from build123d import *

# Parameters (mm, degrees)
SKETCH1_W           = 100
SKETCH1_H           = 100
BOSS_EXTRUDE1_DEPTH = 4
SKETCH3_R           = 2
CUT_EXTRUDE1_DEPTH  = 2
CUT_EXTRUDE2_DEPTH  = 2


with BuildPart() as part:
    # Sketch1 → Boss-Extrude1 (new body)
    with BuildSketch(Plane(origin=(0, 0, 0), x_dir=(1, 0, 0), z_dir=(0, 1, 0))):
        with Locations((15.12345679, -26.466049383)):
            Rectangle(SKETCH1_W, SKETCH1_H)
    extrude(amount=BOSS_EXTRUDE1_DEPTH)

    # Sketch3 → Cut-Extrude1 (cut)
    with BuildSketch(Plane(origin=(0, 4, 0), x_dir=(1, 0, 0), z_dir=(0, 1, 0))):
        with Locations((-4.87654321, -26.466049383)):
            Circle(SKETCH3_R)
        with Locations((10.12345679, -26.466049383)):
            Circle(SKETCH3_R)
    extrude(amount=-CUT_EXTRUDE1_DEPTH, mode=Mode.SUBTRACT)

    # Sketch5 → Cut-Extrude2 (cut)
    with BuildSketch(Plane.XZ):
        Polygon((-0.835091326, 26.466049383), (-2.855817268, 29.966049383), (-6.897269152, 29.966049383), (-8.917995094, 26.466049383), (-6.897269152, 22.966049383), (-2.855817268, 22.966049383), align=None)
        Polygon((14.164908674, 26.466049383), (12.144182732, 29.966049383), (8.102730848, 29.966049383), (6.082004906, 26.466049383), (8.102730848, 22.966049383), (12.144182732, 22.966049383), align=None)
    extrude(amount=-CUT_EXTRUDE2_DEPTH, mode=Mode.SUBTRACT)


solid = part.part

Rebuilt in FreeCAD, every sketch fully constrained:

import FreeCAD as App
import Part
import Sketcher
from FreeCAD import Vector
Q = App.Units.Quantity

doc = App.newDocument("Part")
params = doc.addObject("Spreadsheet::Sheet", "Params")
for row, (alias, value) in enumerate([
    ("sketch1_width", "100 mm"),
    ("pad1_length", "4 mm"),
    ("sketch2_diameter", "4 mm"),
    ("pocket1_length", "2 mm"),
    ("pocket2_length", "2 mm"),
], start=1):
    params.set(f"A{row}", alias)
    params.set(f"B{row}", "=" + value)
    params.setAlias(f"B{row}", alias)

body = doc.addObject("PartDesign::Body", "Body")

# Sketch on XZ plane
sketch1 = doc.addObject("Sketcher::SketchObject", "Sketch")
body.addObject(sketch1)
sketch1.AttachmentSupport = (doc.XZ_Plane, [""])
sketch1.MapMode = "FlatFace"
sketch1.addGeometry(Part.LineSegment(Vector(-35, -24, 0), Vector(-35, 76, 0)), False)
sketch1.addGeometry(Part.LineSegment(Vector(-35, 76, 0), Vector(65, 76, 0)), False)
sketch1.addGeometry(Part.LineSegment(Vector(65, 76, 0), Vector(65, -24, 0)), False)
sketch1.addGeometry(Part.LineSegment(Vector(65, -24, 0), Vector(-35, -24, 0)), False)
sketch1.addConstraint(Sketcher.Constraint("Coincident", 0, 2, 1, 1))
sketch1.addConstraint(Sketcher.Constraint("Coincident", 1, 2, 2, 1))
sketch1.addConstraint(Sketcher.Constraint("Coincident", 2, 2, 3, 1))
sketch1.addConstraint(Sketcher.Constraint("Coincident", 3, 2, 0, 1))
sketch1.addConstraint(Sketcher.Constraint("Vertical", 0))
sketch1.addConstraint(Sketcher.Constraint("Horizontal", 1))
sketch1.addConstraint(Sketcher.Constraint("Vertical", 2))
sketch1.addConstraint(Sketcher.Constraint("Horizontal", 3))
sketch1.addConstraint(Sketcher.Constraint("Equal", 3, 0))
sketch1.addConstraint(Sketcher.Constraint("DistanceX", 1, 1, 1, 2, Q("100 mm")))
sketch1.addConstraint(Sketcher.Constraint("DistanceY", -1, 1, 0, 2, Q("76.466049 mm")))
sketch1.addConstraint(Sketcher.Constraint("DistanceX", 0, 2, -1, 1, Q("34.876543 mm")))
sketch1.setExpression("Constraints[9]", "Params.sketch1_width")
pad1 = doc.addObject("PartDesign::Pad", "Pad")
body.addObject(pad1)
pad1.Profile = sketch1
pad1.setExpression("Length", "Params.pad1_length")
pad1.Reversed = True

# Sketch on XZ plane
sketch2 = doc.addObject("Sketcher::SketchObject", "Sketch001")
body.addObject(sketch2)
sketch2.AttachmentSupport = (doc.XZ_Plane, [""])
sketch2.MapMode = "FlatFace"
sketch2.AttachmentOffset = App.Placement(Vector(0, 0, -4), App.Rotation())
sketch2.addGeometry(Part.Circle(Vector(-4.9, 26.5, 0), Vector(0, 0, 1), 2), False)
sketch2.addGeometry(Part.Circle(Vector(10.1, 26.5, 0), Vector(0, 0, 1), 2), False)
sketch2.addConstraint(Sketcher.Constraint("Equal", 0, 1))
sketch2.addConstraint(Sketcher.Constraint("Horizontal", 0, 3, 1, 3))
sketch2.addConstraint(Sketcher.Constraint("Diameter", 0, Q("4 mm")))
sketch2.addConstraint(Sketcher.Constraint("DistanceX", 0, 3, 1, 3, Q("15 mm")))
sketch2.addConstraint(Sketcher.Constraint("DistanceY", -1, 1, 0, 3, Q("26.466049 mm")))
sketch2.addConstraint(Sketcher.Constraint("DistanceX", 0, 3, -1, 1, Q("4.876543 mm")))
sketch2.setExpression("Constraints[2]", "Params.sketch2_diameter")
pocket1 = doc.addObject("PartDesign::Pocket", "Pocket")
body.addObject(pocket1)
pocket1.Profile = sketch2
pocket1.setExpression("Length", "Params.pocket1_length")
pocket1.Reversed = True

# Sketch on XZ plane
sketch3 = doc.addObject("Sketcher::SketchObject", "Sketch002")
body.addObject(sketch3)
sketch3.AttachmentSupport = (doc.XZ_Plane, [""])
sketch3.MapMode = "FlatFace"
sketch3.addGeometry(Part.LineSegment(Vector(-0.8, 26.5, 0), Vector(-2.9, 30, 0)), False)
sketch3.addGeometry(Part.LineSegment(Vector(-2.9, 30, 0), Vector(-6.9, 30, 0)), False)
sketch3.addGeometry(Part.LineSegment(Vector(-6.9, 30, 0), Vector(-8.9, 26.5, 0)), False)
sketch3.addGeometry(Part.LineSegment(Vector(-8.9, 26.5, 0), Vector(-6.9, 23, 0)), False)
sketch3.addGeometry(Part.LineSegment(Vector(-6.9, 23, 0), Vector(-2.9, 23, 0)), False)
sketch3.addGeometry(Part.LineSegment(Vector(-2.9, 23, 0), Vector(-0.8, 26.5, 0)), False)
sketch3.addGeometry(Part.LineSegment(Vector(14.2, 26.5, 0), Vector(12.1, 30, 0)), False)
sketch3.addGeometry(Part.LineSegment(Vector(12.1, 30, 0), Vector(8.1, 30, 0)), False)
sketch3.addGeometry(Part.LineSegment(Vector(8.1, 30, 0), Vector(6.1, 26.5, 0)), False)
sketch3.addGeometry(Part.LineSegment(Vector(6.1, 26.5, 0), Vector(8.1, 23, 0)), False)
sketch3.addGeometry(Part.LineSegment(Vector(8.1, 23, 0), Vector(12.1, 23, 0)), False)
sketch3.addGeometry(Part.LineSegment(Vector(12.1, 23, 0), Vector(14.2, 26.5, 0)), False)
sketch3.addConstraint(Sketcher.Constraint("Coincident", 0, 2, 1, 1))
sketch3.addConstraint(Sketcher.Constraint("Coincident", 1, 2, 2, 1))
sketch3.addConstraint(Sketcher.Constraint("Coincident", 2, 2, 3, 1))
sketch3.addConstraint(Sketcher.Constraint("Coincident", 3, 2, 4, 1))
sketch3.addConstraint(Sketcher.Constraint("Coincident", 4, 2, 5, 1))
sketch3.addConstraint(Sketcher.Constraint("Coincident", 5, 2, 0, 1))
sketch3.addConstraint(Sketcher.Constraint("Coincident", 6, 2, 7, 1))
sketch3.addConstraint(Sketcher.Constraint("Coincident", 7, 2, 8, 1))
sketch3.addConstraint(Sketcher.Constraint("Coincident", 8, 2, 9, 1))
sketch3.addConstraint(Sketcher.Constraint("Coincident", 9, 2, 10, 1))
sketch3.addConstraint(Sketcher.Constraint("Coincident", 10, 2, 11, 1))
sketch3.addConstraint(Sketcher.Constraint("Coincident", 11, 2, 6, 1))
sketch3.addConstraint(Sketcher.Constraint("Horizontal", 1))
sketch3.addConstraint(Sketcher.Constraint("Horizontal", 4))
sketch3.addConstraint(Sketcher.Constraint("Horizontal", 7))
sketch3.addConstraint(Sketcher.Constraint("Horizontal", 10))
sketch3.addConstraint(Sketcher.Constraint("Parallel", 0, 3))
sketch3.addConstraint(Sketcher.Constraint("Parallel", 2, 5))
sketch3.addConstraint(Sketcher.Constraint("Parallel", 3, 6))
sketch3.addConstraint(Sketcher.Constraint("Parallel", 5, 8))
sketch3.addConstraint(Sketcher.Constraint("Parallel", 6, 9))
sketch3.addConstraint(Sketcher.Constraint("Parallel", 8, 11))
sketch3.addConstraint(Sketcher.Constraint("Horizontal", 2, 2, 5, 2))
sketch3.addConstraint(Sketcher.Constraint("Horizontal", 1, 2, 6, 2))
sketch3.addConstraint(Sketcher.Constraint("Horizontal", 5, 2, 8, 2))
sketch3.addConstraint(Sketcher.Constraint("Horizontal", 4, 2, 9, 2))
sketch3.addConstraint(Sketcher.Constraint("Horizontal", 8, 2, 11, 2))
sketch3.addConstraint(Sketcher.Constraint("Vertical", 1, 2, 3, 2))
sketch3.addConstraint(Sketcher.Constraint("Vertical", 0, 2, 4, 2))
sketch3.addConstraint(Sketcher.Constraint("Equal", 4, 7))
sketch3.addConstraint(Sketcher.Constraint("Angle", 0, Q("120 deg")))
sketch3.addConstraint(Sketcher.Constraint("DistanceY", 3, 2, 1, 2, Q("7 mm")))
sketch3.addConstraint(Sketcher.Constraint("DistanceX", 0, 2, 6, 2, Q("15 mm")))
sketch3.addConstraint(Sketcher.Constraint("DistanceX", 1, 2, 1, 1, Q("4.041452 mm")))
sketch3.addConstraint(Sketcher.Constraint("DistanceY", -1, 1, 0, 2, Q("29.966049 mm")))
sketch3.addConstraint(Sketcher.Constraint("DistanceX", 1, 2, -1, 1, Q("6.897269 mm")))
pocket2 = doc.addObject("PartDesign::Pocket", "Pocket001")
body.addObject(pocket2)
pocket2.Profile = sketch3
pocket2.setExpression("Length", "Params.pocket2_length")

doc.recompute()
